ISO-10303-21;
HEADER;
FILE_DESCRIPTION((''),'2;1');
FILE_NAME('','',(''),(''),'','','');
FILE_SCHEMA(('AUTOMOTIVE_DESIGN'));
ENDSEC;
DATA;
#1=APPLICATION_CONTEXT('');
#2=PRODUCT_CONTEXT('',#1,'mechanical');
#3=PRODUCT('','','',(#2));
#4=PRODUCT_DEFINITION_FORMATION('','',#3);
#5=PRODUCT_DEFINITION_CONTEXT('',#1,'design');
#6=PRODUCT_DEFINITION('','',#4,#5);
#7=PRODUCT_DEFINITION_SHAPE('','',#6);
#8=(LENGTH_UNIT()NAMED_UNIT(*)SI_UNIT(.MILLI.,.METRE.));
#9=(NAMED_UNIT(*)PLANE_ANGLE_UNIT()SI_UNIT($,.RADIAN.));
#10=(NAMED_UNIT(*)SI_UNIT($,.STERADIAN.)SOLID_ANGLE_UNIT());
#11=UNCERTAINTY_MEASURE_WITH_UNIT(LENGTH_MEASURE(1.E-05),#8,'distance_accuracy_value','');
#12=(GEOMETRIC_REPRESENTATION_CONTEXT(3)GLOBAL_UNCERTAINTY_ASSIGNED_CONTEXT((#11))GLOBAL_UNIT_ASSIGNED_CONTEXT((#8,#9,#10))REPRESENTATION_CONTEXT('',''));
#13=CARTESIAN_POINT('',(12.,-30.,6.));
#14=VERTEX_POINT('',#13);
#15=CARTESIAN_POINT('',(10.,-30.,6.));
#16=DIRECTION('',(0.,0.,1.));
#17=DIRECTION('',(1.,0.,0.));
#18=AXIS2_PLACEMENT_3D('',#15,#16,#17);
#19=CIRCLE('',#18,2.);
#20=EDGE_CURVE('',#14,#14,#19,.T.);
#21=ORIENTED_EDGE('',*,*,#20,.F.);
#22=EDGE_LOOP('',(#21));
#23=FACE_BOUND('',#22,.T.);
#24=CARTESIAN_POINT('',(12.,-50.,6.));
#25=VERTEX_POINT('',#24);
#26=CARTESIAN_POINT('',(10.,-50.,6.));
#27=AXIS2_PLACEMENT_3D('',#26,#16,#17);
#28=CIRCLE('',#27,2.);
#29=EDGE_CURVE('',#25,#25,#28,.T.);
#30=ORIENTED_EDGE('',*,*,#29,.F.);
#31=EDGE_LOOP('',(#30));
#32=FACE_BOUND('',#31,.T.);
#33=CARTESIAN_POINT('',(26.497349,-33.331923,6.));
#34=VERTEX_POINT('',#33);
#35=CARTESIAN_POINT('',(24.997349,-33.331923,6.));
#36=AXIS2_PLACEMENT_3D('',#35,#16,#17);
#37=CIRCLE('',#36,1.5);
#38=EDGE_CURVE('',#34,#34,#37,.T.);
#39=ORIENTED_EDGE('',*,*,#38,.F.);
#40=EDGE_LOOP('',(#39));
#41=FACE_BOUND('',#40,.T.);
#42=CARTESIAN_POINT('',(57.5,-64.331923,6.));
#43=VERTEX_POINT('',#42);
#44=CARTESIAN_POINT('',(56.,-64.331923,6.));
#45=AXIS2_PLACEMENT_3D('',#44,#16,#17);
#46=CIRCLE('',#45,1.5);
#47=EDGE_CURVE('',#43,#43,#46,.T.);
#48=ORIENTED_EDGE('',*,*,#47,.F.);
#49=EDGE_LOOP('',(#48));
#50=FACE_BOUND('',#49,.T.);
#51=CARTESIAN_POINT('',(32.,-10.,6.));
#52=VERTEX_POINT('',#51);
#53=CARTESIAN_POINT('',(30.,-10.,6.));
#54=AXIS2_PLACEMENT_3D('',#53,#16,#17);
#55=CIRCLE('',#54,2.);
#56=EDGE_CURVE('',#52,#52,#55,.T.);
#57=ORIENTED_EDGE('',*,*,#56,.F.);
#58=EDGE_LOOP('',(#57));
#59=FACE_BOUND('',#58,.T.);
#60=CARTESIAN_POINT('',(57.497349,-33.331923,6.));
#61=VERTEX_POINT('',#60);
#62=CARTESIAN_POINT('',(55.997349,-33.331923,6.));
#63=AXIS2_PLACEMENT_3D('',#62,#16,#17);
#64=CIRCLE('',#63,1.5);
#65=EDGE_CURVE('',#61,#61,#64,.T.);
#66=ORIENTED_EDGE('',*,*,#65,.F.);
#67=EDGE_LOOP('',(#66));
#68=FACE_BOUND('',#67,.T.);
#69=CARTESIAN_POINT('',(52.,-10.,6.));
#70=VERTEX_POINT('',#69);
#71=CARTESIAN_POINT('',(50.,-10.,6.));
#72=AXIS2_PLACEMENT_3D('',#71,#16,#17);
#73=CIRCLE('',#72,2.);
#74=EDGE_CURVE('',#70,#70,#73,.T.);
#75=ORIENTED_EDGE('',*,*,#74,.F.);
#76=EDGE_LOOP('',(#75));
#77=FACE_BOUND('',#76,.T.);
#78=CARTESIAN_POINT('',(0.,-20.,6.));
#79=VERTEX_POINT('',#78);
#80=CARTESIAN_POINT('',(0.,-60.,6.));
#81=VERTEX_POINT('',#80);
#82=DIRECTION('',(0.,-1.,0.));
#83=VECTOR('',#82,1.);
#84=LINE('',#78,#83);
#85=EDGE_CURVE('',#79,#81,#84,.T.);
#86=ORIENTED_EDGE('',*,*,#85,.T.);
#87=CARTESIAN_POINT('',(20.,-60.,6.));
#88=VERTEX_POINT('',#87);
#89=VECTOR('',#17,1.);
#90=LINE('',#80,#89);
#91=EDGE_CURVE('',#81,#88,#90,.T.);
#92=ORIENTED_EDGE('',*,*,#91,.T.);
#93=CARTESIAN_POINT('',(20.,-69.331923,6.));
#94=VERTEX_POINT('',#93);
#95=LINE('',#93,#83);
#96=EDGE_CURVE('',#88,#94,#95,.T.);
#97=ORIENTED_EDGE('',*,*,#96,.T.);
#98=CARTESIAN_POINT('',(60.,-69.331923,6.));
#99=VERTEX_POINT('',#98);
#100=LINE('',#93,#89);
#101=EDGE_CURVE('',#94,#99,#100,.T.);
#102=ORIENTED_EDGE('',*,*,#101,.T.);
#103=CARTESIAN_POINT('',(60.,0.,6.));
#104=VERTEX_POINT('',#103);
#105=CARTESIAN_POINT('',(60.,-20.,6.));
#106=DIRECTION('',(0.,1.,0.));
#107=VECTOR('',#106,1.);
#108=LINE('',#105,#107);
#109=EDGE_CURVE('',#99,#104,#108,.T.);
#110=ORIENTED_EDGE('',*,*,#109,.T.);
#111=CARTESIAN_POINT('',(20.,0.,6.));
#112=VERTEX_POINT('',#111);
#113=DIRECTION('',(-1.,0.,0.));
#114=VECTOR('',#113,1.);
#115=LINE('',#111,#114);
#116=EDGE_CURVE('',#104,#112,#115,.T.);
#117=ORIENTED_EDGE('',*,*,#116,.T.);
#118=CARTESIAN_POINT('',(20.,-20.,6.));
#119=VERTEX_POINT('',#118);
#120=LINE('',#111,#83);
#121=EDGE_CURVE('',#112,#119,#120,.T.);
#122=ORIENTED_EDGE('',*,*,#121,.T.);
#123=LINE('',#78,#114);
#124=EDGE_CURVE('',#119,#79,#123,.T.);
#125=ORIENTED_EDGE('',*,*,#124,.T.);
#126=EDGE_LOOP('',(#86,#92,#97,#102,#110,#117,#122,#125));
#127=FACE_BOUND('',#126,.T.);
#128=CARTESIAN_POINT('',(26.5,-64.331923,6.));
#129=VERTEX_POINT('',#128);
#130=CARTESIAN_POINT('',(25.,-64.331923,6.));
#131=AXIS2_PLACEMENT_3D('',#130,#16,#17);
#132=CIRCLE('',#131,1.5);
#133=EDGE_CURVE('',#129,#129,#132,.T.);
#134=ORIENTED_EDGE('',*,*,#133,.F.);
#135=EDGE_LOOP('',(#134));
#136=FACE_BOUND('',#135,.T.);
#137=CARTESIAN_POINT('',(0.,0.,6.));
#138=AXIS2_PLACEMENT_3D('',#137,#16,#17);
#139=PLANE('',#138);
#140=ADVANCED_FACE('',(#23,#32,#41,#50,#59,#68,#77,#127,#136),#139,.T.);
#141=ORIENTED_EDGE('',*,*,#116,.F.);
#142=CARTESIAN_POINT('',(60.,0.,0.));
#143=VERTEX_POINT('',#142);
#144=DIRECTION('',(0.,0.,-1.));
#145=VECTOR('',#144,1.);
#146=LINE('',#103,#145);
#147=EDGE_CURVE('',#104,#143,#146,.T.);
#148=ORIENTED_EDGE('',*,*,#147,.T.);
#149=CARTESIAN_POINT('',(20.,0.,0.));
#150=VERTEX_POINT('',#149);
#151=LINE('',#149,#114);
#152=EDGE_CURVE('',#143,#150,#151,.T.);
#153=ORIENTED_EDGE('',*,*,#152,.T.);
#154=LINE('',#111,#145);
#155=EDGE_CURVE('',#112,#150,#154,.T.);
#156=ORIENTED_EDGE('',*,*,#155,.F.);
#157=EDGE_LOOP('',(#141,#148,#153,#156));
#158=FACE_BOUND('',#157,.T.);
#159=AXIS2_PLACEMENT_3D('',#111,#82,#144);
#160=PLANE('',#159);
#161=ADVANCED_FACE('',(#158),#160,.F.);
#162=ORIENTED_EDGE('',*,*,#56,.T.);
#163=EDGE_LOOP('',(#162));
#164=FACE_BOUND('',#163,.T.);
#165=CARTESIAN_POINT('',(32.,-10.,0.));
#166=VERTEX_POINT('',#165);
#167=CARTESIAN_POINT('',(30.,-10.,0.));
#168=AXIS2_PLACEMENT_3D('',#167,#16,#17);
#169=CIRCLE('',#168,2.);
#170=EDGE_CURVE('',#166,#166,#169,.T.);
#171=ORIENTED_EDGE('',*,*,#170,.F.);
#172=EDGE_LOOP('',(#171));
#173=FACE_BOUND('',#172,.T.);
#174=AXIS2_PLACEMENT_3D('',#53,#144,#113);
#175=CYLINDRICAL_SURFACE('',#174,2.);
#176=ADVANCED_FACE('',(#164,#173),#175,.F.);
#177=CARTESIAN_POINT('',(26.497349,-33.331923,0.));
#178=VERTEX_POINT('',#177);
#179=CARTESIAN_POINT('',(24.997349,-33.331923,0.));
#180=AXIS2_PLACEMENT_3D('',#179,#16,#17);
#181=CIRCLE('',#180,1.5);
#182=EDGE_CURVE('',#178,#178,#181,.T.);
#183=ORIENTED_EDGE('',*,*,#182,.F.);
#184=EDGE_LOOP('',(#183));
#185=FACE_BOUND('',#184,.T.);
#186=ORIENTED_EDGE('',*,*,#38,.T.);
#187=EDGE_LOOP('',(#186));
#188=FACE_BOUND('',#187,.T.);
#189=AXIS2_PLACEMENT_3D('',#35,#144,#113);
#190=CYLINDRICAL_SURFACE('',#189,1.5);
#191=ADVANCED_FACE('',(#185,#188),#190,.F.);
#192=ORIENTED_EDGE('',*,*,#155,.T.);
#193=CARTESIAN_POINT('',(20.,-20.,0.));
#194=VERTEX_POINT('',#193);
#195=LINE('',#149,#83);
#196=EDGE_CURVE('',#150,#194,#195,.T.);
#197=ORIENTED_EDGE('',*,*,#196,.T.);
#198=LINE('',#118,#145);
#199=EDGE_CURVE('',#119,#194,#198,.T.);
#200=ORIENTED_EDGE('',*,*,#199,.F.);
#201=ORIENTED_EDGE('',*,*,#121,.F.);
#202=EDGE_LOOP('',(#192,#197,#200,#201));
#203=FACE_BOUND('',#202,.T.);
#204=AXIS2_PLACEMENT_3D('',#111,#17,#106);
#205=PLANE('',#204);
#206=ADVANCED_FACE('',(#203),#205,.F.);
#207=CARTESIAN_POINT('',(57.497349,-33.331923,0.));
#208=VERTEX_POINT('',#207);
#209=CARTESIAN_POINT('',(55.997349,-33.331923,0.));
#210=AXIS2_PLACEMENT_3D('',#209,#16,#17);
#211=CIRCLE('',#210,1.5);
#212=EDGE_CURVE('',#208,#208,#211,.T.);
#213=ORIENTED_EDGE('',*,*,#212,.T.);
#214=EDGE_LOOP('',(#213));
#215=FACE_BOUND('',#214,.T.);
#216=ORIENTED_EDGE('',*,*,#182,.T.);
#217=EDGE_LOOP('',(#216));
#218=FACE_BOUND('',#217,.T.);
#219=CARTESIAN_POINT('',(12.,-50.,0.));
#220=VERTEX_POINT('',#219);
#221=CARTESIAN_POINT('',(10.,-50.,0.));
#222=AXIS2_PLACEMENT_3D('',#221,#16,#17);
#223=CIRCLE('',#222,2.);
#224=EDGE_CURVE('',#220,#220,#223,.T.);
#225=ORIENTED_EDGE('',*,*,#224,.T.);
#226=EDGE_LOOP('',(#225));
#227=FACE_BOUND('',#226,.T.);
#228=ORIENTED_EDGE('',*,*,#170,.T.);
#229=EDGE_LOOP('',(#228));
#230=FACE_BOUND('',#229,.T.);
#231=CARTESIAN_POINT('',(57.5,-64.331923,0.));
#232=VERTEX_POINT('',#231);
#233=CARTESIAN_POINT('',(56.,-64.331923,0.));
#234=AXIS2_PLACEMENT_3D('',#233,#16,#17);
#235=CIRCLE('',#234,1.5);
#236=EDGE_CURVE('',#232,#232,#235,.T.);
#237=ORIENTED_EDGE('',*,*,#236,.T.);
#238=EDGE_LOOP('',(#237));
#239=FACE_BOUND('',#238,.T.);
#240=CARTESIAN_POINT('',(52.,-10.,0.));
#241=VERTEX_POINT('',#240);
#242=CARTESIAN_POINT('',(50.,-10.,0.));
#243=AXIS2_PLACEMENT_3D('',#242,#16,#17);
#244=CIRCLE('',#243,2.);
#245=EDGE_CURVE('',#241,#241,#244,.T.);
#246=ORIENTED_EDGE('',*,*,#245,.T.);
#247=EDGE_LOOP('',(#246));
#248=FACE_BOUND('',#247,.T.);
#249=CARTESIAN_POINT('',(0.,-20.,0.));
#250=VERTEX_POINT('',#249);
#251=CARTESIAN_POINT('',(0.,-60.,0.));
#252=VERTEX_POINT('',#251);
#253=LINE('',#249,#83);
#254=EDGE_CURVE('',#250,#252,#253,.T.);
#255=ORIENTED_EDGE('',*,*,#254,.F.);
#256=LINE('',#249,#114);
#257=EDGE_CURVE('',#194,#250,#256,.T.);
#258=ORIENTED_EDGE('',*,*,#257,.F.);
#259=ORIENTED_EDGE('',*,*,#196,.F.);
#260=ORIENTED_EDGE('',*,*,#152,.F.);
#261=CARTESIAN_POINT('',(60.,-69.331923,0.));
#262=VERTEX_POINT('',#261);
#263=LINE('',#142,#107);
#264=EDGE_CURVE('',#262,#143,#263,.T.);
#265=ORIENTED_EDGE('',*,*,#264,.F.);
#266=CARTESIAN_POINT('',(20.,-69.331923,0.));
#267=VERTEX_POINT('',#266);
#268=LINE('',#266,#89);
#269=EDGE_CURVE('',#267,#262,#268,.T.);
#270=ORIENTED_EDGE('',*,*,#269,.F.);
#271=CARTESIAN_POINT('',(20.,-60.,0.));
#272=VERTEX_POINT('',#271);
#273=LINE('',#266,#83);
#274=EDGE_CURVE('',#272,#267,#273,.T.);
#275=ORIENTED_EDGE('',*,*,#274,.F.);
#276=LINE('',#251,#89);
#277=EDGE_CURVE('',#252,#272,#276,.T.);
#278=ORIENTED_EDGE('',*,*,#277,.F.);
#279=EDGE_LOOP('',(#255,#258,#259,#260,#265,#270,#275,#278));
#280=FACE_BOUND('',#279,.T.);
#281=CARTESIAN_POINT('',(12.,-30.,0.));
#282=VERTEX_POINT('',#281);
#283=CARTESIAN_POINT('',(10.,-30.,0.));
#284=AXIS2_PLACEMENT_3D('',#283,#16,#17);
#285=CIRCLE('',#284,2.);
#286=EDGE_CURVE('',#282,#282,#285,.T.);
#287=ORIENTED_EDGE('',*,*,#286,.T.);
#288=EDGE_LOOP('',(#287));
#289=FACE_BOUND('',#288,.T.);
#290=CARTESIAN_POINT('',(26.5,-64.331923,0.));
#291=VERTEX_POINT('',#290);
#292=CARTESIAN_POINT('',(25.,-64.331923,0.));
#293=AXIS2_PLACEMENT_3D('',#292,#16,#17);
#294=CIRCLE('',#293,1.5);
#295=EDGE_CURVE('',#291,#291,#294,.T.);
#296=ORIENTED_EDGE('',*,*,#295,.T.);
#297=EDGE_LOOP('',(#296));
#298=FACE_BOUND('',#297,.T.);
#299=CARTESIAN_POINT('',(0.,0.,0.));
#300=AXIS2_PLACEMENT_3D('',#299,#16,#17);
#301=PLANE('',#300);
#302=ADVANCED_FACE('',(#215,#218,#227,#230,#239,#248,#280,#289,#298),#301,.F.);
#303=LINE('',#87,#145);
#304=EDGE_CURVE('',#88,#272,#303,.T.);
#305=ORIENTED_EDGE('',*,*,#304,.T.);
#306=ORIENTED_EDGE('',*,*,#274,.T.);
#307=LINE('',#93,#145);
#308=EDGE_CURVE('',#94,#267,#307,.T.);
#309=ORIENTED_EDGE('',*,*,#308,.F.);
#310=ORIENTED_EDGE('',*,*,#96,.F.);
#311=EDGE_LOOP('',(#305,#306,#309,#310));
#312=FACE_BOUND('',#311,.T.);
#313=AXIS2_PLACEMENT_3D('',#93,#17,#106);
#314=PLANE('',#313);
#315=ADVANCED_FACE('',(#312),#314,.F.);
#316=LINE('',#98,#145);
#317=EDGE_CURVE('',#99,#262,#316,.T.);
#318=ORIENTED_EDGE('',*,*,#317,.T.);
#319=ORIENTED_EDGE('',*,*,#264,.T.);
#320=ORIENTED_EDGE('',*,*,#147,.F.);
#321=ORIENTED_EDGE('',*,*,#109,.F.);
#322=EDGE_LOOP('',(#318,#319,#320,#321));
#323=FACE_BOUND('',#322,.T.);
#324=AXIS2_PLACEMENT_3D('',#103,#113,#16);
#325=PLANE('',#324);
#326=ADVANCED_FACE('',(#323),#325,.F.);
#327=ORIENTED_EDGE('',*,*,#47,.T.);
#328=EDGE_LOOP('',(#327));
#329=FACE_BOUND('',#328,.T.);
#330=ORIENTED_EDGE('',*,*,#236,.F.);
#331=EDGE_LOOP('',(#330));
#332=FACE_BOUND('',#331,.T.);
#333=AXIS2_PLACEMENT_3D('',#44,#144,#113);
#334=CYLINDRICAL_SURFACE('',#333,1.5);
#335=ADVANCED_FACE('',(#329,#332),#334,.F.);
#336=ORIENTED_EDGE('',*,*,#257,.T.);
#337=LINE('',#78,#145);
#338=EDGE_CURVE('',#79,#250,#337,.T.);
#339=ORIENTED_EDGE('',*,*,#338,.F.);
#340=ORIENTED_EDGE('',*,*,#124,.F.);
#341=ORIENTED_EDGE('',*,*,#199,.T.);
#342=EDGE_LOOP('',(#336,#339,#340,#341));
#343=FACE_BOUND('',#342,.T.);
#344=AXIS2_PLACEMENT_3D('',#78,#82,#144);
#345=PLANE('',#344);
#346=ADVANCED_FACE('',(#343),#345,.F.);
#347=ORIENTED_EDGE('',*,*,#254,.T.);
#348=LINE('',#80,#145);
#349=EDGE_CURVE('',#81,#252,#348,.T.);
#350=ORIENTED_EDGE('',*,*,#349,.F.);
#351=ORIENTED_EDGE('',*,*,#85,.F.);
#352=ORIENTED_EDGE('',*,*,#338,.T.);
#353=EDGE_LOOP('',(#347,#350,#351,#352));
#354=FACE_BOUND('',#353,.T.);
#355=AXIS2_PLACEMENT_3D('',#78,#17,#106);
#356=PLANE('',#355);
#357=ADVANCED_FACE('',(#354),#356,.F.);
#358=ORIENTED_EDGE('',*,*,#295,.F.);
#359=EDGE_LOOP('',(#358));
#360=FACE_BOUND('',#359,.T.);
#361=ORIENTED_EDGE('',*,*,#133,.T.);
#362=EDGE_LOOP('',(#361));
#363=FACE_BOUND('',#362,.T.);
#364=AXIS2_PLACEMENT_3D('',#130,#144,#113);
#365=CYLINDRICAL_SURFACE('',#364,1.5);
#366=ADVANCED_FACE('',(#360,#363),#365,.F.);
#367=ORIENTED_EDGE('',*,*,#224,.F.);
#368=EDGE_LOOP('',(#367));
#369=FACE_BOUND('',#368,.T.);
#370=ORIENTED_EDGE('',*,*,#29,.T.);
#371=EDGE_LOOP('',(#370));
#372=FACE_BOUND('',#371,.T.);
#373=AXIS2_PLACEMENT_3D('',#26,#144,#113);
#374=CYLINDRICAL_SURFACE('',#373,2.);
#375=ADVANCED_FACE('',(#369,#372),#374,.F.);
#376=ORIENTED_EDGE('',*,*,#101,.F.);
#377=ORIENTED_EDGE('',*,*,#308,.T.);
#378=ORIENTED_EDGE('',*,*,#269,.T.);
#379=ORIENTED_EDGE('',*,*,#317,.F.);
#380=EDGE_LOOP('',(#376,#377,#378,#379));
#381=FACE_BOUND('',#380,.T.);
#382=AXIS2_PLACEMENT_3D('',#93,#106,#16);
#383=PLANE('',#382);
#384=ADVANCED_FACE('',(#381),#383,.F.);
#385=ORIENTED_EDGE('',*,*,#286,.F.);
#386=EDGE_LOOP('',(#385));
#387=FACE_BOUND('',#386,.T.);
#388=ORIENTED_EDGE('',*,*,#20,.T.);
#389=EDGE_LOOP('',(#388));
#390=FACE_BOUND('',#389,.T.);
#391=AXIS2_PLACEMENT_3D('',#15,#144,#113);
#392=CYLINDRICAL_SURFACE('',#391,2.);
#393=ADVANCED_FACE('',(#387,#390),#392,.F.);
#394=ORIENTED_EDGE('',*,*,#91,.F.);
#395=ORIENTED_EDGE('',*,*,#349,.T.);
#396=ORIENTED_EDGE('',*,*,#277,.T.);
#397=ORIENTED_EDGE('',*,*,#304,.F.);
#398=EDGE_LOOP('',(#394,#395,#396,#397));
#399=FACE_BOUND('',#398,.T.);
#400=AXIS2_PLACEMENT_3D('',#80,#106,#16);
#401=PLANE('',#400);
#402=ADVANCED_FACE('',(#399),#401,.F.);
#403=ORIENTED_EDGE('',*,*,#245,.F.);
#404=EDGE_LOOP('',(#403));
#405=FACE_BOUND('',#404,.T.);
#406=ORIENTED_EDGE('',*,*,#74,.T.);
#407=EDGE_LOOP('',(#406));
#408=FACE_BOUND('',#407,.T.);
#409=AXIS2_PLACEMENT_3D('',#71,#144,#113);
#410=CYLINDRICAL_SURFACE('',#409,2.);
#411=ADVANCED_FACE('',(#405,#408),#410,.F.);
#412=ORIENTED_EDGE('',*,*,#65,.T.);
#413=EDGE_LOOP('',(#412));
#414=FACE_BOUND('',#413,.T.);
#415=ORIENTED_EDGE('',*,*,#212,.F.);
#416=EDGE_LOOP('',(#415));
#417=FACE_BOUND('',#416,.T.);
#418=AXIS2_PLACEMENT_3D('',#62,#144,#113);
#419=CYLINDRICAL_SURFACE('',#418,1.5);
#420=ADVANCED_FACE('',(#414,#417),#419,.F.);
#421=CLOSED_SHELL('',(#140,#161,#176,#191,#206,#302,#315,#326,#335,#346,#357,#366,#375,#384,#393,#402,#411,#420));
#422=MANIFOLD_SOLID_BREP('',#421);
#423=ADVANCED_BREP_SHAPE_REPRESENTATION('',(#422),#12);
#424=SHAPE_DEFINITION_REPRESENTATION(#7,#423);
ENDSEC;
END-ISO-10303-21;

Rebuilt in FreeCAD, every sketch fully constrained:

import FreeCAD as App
import Part
import Sketcher


def add_polygon(sketch, points):
    """Adds a closed chain of lines whose ends are joined by coincident constraints."""
    first, n = sketch.GeometryCount, len(points)
    for a, b in zip(points, points[1:] + points[:1]):
        sketch.addGeometry(Part.LineSegment(App.Vector(*a, 0), App.Vector(*b, 0)), False)
    for i in range(n):
        sketch.addConstraint(Sketcher.Constraint("Coincident", first + i, 2, first + (i + 1) % n, 1))

doc = App.newDocument("Part")
body = doc.addObject("PartDesign::Body", "Body")

# Sketch on XY plane
sketch1 = body.newObject("Sketcher::SketchObject", "Sketch")
sketch1.AttachmentSupport = (doc.getObject("XY_Plane"), [""])
sketch1.MapMode = "FlatFace"
add_polygon(sketch1, [(60, 0), (20, 0), (20, -20), (0, -20), (0, -60), (20, -60), (20, -69.3), (60, -69.3)])  # lines 0-7
sketch1.addGeometry(Part.Circle(App.Vector(56, -64.3, 0), App.Vector(0, 0, 1), 1.5), False)  # 8
sketch1.addGeometry(Part.Circle(App.Vector(25, -64.3, 0), App.Vector(0, 0, 1), 1.5), False)  # 9
sketch1.addGeometry(Part.Circle(App.Vector(10, -50, 0), App.Vector(0, 0, 1), 2), False)  # 10
sketch1.addGeometry(Part.Circle(App.Vector(56, -33.3, 0), App.Vector(0, 0, 1), 1.5), False)  # 11
sketch1.addGeometry(Part.Circle(App.Vector(50, -10, 0), App.Vector(0, 0, 1), 2), False)  # 12
sketch1.addGeometry(Part.Circle(App.Vector(25, -33.3, 0), App.Vector(0, 0, 1), 1.5), False)  # 13
sketch1.addGeometry(Part.Circle(App.Vector(10, -30, 0), App.Vector(0, 0, 1), 2), False)  # 14
sketch1.addGeometry(Part.Circle(App.Vector(30, -10, 0), App.Vector(0, 0, 1), 2), False)  # 15
sketch1.addConstraint(Sketcher.Constraint("Horizontal", 0))
sketch1.addConstraint(Sketcher.Constraint("Vertical", 1))
sketch1.addConstraint(Sketcher.Constraint("Horizontal", 2))
sketch1.addConstraint(Sketcher.Constraint("Vertical", 3))
sketch1.addConstraint(Sketcher.Constraint("Horizontal", 4))
sketch1.addConstraint(Sketcher.Constraint("Vertical", 5))
sketch1.addConstraint(Sketcher.Constraint("Horizontal", 6))
sketch1.addConstraint(Sketcher.Constraint("Vertical", 7))
sketch1.addConstraint(Sketcher.Constraint("Equal", 8, 9))
sketch1.addConstraint(Sketcher.Constraint("Equal", 9, 11))
sketch1.addConstraint(Sketcher.Constraint("Equal", 10, 12))
sketch1.addConstraint(Sketcher.Constraint("Equal", 11, 13))
sketch1.addConstraint(Sketcher.Constraint("Equal", 12, 14))
sketch1.addConstraint(Sketcher.Constraint("Equal", 14, 15))
sketch1.addConstraint(Sketcher.Constraint("PointOnObject", 0, 2, -1))
sketch1.addConstraint(Sketcher.Constraint("PointOnObject", 2, 2, -2))
sketch1.addConstraint(Sketcher.Constraint("Horizontal", 8, 3, 9, 3))
sketch1.addConstraint(Sketcher.Constraint("Horizontal", 11, 3, 13, 3))
sketch1.addConstraint(Sketcher.Constraint("Horizontal", 12, 3, 15, 3))
sketch1.addConstraint(Sketcher.Constraint("Vertical", 10, 3, 14, 3))
sketch1.addConstraint(Sketcher.Constraint("Vertical", 1, 2, 4, 2))
sketch1.addConstraint(Sketcher.Constraint("Equal", 4, 1))
sketch1.addConstraint(Sketcher.Constraint("Equal", 6, 3))
sketch1.addConstraint(Sketcher.Constraint("Diameter", 8, 3.0))
sketch1.addConstraint(Sketcher.Constraint("Diameter", 10, 4.0))
sketch1.addConstraint(Sketcher.Constraint("DistanceX", 0, 2, 0, 1, 40.0))
sketch1.addConstraint(Sketcher.Constraint("DistanceX", 2, 2, 2, 1, 20.0))
sketch1.addConstraint(Sketcher.Constraint("DistanceX", -1, 1, 8, 3, 56.0))
sketch1.addConstraint(Sketcher.Constraint("DistanceX", -1, 1, 9, 3, 25.0))
sketch1.addConstraint(Sketcher.Constraint("DistanceX", -1, 1, 10, 3, 10.0))
sketch1.addConstraint(Sketcher.Constraint("DistanceY", 10, 3, -1, 1, 50.0))
sketch1.addConstraint(Sketcher.Constraint("DistanceX", -1, 1, 12, 3, 50.0))
sketch1.addConstraint(Sketcher.Constraint("DistanceY", 12, 3, -1, 1, 10.0))
sketch1.addConstraint(Sketcher.Constraint("DistanceY", 14, 3, -1, 1, 30.0))
sketch1.addConstraint(Sketcher.Constraint("DistanceX", -1, 1, 15, 3, 30.0))
sketch1.addConstraint(Sketcher.Constraint("DistanceY", 8, 3, 11, 3, 31.0))
sketch1.addConstraint(Sketcher.Constraint("DistanceX", 13, 3, 11, 3, 31.0))
sketch1.addConstraint(Sketcher.Constraint("DistanceY", 5, 2, 9, 3, 5.0))
sketch1.addConstraint(Sketcher.Constraint("DistanceY", 5, 2, 5, 1, 9.331923))
sketch1.addConstraint(Sketcher.Constraint("DistanceX", -1, 1, 11, 3, 55.997349))
pad1 = body.newObject("PartDesign::Pad", "Pad")
pad1.Profile = sketch1
pad1.Length = 6

doc.recompute()
